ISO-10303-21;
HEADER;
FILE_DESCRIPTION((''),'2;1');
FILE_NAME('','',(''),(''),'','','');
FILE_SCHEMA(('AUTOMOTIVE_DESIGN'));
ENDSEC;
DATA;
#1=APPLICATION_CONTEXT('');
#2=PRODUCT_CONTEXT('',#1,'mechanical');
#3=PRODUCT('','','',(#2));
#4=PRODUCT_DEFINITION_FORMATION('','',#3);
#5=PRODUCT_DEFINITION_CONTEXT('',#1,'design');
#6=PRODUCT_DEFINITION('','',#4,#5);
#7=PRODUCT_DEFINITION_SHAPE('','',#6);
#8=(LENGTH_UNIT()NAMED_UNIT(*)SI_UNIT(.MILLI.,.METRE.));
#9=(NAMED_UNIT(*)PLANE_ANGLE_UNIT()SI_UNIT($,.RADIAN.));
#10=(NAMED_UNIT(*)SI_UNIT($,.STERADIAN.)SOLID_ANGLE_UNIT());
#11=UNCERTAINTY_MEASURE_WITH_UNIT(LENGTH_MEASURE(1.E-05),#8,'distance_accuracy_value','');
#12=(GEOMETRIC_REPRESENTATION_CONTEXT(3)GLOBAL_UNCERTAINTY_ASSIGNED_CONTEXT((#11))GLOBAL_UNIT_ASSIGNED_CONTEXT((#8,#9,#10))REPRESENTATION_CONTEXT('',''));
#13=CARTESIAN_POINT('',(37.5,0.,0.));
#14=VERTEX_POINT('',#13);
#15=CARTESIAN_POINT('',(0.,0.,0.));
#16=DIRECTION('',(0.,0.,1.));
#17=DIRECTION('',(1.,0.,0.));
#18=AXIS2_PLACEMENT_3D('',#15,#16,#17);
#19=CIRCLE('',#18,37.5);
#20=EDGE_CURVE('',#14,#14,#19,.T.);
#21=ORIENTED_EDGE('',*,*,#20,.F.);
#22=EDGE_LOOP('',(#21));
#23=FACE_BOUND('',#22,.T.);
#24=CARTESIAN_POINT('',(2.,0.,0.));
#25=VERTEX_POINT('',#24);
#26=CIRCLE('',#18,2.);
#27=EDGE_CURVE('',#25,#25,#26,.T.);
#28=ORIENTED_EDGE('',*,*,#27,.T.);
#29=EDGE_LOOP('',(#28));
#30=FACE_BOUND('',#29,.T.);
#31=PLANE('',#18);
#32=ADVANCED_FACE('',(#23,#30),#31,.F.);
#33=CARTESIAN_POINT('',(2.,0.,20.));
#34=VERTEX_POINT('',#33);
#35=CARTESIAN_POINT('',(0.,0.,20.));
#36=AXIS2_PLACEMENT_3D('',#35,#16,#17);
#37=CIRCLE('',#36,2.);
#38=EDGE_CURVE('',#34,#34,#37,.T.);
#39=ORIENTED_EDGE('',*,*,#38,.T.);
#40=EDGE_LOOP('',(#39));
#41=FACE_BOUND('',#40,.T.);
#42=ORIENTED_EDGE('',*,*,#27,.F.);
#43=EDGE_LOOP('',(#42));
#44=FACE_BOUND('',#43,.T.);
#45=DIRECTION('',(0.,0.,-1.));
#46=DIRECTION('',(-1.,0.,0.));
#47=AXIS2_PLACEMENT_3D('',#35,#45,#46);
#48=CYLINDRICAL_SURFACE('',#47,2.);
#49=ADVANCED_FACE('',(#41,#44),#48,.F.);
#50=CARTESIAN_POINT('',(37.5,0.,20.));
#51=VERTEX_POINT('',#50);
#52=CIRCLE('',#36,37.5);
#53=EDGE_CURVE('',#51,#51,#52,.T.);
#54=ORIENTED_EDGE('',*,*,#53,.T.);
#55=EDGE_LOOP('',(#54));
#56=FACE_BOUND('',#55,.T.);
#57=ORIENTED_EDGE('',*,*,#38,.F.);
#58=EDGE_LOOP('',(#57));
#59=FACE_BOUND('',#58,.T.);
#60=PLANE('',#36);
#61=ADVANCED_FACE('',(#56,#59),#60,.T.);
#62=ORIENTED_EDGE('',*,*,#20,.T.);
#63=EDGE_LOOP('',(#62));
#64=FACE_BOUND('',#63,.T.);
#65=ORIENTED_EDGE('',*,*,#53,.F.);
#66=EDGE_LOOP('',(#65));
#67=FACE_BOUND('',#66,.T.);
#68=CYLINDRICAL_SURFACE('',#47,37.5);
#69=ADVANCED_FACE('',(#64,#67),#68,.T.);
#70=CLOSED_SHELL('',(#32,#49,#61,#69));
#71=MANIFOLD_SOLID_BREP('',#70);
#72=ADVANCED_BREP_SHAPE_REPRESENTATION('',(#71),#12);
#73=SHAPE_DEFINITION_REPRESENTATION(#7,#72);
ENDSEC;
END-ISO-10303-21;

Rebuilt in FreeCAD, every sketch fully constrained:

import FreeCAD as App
import Part
import Sketcher
from FreeCAD import Vector
Q = App.Units.Quantity

doc = App.newDocument("Part")
body = doc.addObject("PartDesign::Body", "Body")

sketch1 = body.newObject("Sketcher::SketchObject", "Sketch")
sketch1.AttachmentSupport = (doc.getObject("XY_Plane"), [""])
sketch1.MapMode = "FlatFace"
sketch1.addGeometry([
    Part.Circle(Vector(0, 0, 0), Vector(0, 0, 1), 37.5),
    Part.Circle(Vector(0, 0, 0), Vector(0, 0, 1), 2),
], False)
sketch1.addConstraint([
    Sketcher.Constraint("Coincident", 0, 3, -1, 1),
    Sketcher.Constraint("Coincident", 1, 3, -1, 1),
    Sketcher.Constraint("Diameter", 0, Q("75 mm")),
    Sketcher.Constraint("Diameter", 1, Q("4 mm")),
])
pad1 = body.newObject("PartDesign::Pad", "Pad")
pad1.Profile = sketch1
pad1.Length = 20

doc.recompute()
